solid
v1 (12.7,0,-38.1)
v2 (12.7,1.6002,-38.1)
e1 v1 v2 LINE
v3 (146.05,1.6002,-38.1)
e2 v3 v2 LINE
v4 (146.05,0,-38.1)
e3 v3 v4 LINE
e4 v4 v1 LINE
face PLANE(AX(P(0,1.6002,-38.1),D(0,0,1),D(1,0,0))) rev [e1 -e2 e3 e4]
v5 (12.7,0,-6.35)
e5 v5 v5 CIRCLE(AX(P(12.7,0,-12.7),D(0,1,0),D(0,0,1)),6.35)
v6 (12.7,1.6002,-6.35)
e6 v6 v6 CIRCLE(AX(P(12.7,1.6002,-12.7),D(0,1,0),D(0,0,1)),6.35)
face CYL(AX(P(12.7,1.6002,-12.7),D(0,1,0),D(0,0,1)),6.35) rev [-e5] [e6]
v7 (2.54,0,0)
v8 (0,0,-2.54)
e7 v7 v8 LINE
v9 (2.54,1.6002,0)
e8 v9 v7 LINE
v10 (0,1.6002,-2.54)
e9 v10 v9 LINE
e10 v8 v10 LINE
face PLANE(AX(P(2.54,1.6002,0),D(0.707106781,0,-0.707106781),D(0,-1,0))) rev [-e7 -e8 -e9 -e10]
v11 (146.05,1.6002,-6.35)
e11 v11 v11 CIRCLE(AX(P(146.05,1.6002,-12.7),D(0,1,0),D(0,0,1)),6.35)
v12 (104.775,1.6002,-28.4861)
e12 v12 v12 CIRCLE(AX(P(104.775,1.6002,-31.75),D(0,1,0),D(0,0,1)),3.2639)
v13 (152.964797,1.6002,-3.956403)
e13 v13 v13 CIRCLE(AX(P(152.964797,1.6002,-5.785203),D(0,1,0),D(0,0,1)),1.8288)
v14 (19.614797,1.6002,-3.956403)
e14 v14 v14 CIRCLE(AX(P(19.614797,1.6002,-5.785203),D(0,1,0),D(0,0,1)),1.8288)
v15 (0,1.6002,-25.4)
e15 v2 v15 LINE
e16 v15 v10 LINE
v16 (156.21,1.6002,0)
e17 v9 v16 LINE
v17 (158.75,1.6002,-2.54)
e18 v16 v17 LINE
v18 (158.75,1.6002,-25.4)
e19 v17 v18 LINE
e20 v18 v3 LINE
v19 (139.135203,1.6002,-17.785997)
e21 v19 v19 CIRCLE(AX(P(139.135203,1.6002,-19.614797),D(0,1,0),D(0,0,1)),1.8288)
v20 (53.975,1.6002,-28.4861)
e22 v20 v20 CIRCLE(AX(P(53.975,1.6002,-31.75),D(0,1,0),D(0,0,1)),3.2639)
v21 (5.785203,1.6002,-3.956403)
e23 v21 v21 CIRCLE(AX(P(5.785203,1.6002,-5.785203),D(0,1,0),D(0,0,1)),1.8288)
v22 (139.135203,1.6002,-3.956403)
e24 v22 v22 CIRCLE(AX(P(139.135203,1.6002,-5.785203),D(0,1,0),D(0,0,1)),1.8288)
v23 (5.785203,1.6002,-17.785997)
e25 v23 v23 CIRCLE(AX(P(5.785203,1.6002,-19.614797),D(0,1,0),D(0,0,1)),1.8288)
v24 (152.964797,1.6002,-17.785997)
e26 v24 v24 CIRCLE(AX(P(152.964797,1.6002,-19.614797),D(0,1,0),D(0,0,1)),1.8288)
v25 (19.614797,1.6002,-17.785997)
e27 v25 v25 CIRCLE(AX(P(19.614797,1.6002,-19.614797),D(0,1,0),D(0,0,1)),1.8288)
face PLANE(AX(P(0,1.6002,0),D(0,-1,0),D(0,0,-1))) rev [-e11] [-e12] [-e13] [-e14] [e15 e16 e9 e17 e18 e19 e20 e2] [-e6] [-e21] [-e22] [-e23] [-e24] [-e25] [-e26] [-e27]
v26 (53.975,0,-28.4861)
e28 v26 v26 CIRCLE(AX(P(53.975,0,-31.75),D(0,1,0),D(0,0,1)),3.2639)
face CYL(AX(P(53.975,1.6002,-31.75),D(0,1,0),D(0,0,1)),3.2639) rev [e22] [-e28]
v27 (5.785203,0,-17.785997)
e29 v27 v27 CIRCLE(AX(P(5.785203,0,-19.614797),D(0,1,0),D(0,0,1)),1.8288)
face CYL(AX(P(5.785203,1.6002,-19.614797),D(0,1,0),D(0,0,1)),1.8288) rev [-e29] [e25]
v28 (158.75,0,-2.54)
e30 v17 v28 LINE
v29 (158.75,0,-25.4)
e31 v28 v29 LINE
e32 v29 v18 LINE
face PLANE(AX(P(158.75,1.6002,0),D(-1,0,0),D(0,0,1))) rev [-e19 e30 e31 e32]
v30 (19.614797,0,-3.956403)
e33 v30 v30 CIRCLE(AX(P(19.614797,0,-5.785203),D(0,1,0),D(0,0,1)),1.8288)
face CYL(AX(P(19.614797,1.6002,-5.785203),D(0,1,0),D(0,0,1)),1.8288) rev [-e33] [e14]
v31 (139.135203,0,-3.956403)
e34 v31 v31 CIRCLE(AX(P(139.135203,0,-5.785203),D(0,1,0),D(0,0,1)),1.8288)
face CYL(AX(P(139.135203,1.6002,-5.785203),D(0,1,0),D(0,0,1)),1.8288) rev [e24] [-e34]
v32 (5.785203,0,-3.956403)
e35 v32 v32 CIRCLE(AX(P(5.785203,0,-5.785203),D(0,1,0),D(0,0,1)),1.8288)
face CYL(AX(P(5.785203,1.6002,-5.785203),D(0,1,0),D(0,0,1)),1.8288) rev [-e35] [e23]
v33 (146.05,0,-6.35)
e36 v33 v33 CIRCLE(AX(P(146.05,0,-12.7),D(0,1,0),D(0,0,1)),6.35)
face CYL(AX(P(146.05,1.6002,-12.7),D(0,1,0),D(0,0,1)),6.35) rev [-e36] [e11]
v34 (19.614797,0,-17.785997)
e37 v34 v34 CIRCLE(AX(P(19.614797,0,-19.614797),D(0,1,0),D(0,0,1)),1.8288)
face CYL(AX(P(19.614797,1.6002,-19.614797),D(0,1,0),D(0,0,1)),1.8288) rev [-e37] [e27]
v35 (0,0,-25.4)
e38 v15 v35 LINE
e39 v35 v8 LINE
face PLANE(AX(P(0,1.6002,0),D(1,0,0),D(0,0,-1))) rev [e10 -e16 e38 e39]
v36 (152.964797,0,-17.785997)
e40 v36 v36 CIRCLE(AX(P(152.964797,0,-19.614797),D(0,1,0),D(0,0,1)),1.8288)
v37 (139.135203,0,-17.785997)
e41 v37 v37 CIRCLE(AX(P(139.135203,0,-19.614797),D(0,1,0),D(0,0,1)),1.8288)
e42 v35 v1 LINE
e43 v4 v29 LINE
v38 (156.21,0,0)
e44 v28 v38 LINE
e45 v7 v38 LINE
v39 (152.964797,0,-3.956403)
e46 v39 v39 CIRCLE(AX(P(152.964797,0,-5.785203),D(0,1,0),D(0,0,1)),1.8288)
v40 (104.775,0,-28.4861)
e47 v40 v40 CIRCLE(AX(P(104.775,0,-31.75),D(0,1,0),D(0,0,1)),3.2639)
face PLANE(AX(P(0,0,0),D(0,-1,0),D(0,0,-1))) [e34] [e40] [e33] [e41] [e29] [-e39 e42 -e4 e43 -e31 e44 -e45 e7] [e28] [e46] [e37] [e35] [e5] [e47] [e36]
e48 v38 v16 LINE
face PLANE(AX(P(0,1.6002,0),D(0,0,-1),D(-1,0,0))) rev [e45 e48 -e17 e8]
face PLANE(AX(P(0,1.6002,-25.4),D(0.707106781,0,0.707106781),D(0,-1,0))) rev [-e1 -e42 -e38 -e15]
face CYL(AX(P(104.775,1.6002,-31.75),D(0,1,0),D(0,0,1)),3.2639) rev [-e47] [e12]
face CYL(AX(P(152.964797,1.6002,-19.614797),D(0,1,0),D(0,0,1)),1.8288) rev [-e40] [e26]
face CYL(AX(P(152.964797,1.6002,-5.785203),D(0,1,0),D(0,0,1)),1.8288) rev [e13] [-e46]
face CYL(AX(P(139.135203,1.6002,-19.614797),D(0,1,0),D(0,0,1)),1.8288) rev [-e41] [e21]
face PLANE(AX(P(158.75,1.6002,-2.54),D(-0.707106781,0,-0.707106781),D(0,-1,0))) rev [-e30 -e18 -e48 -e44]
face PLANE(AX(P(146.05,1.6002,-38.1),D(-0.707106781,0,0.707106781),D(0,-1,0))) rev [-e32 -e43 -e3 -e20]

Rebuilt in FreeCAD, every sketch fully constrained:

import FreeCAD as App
import Part
import Sketcher
Q = App.Units.Quantity


def edges_at(feature, points):
    """Names of the edges that pass closest to the given points."""
    edges = feature.Shape.Edges
    near = lambda p: min(range(len(edges)), key=lambda i: edges[i].distToShape(Part.Vertex(*p))[0])
    return sorted({f"Edge{near(p) + 1}" for p in points})


def add_polygon(sketch, points):
    """Adds a closed chain of lines whose ends are joined by coincident constraints."""
    first, n = sketch.GeometryCount, len(points)
    for a, b in zip(points, points[1:] + points[:1]):
        sketch.addGeometry(Part.LineSegment(App.Vector(*a, 0), App.Vector(*b, 0)), False)
    for i in range(n):
        sketch.addConstraint(Sketcher.Constraint("Coincident", first + i, 2, first + (i + 1) % n, 1))

doc = App.newDocument("Part")
body = doc.addObject("PartDesign::Body", "Body")

sketch1 = doc.addObject("Sketcher::SketchObject", "Sketch")
body.addObject(sketch1)
sketch1.AttachmentSupport = (doc.XZ_Plane, [""])
sketch1.MapMode = "FlatFace"
add_polygon(sketch1, [(0, -38.1), (0, 0), (158.75, 0), (158.75, -38.1)])
sketch1.addConstraint([
    Sketcher.Constraint("Vertical", 0),
    Sketcher.Constraint("Horizontal", 1),
    Sketcher.Constraint("Vertical", 2),
    Sketcher.Constraint("Horizontal", 3),
    Sketcher.Constraint("Coincident", 0, 2, -1, 1),
    Sketcher.Constraint("DistanceY", 0, 1, 0, 2, Q("1.5 in")),
    Sketcher.Constraint("DistanceX", 1, 1, 1, 2, Q("6.25 in")),
])
pad1 = doc.addObject("PartDesign::Pad", "Pad")
body.addObject(pad1)
pad1.Profile = sketch1
pad1.Length = Q("0.063 in")
pad1.Reversed = True

sketch2 = doc.addObject("Sketcher::SketchObject", "Sketch001")
body.addObject(sketch2)
sketch2.AttachmentSupport = (doc.XZ_Plane, [""])
sketch2.MapMode = "FlatFace"
sketch2.AttachmentOffset = App.Placement(App.Vector(0, 0, -0.063 * 25.4), App.Rotation())
sketch2.addGeometry([
    Part.Circle(App.Vector(5.785203, -19.614797, 0), App.Vector(0, 0, 1), 1.8288),
    Part.Circle(App.Vector(19.614797, -5.785203, 0), App.Vector(0, 0, 1), 1.8288),
    Part.Circle(App.Vector(5.785203, -5.785203, 0), App.Vector(0, 0, 1), 1.8288),
    Part.Circle(App.Vector(19.614797, -19.614797, 0), App.Vector(0, 0, 1), 1.8288),
    Part.Circle(App.Vector(152.964797, -5.785203, 0), App.Vector(0, 0, 1), 1.8288),
    Part.Circle(App.Vector(139.135203, -5.785203, 0), App.Vector(0, 0, 1), 1.8288),
    Part.Circle(App.Vector(139.135203, -19.614797, 0), App.Vector(0, 0, 1), 1.8288),
    Part.Circle(App.Vector(152.964797, -19.614797, 0), App.Vector(0, 0, 1), 1.8288),
], False)
sketch2.addConstraint([
    Sketcher.Constraint("Equal", 0, 1),
    Sketcher.Constraint("Equal", 1, 2),
    Sketcher.Constraint("Equal", 2, 3),
    Sketcher.Constraint("Equal", 3, 4),
    Sketcher.Constraint("Equal", 4, 5),
    Sketcher.Constraint("Equal", 5, 6),
    Sketcher.Constraint("Equal", 6, 7),
    Sketcher.Constraint("Horizontal", 1, 3, 2, 3),
    Sketcher.Constraint("Horizontal", 0, 3, 3, 3),
    Sketcher.Constraint("Horizontal", 2, 3, 4, 3),
    Sketcher.Constraint("Horizontal", 4, 3, 5, 3),
    Sketcher.Constraint("Horizontal", 3, 3, 6, 3),
    Sketcher.Constraint("Horizontal", 6, 3, 7, 3),
    Sketcher.Constraint("Vertical", 0, 3, 2, 3),
    Sketcher.Constraint("Vertical", 1, 3, 3, 3),
    Sketcher.Constraint("Vertical", 5, 3, 6, 3),
    Sketcher.Constraint("Vertical", 4, 3, 7, 3),
    Sketcher.Constraint("Diameter", 0, Q("0.144 in")),
    Sketcher.Constraint("DistanceX", 1, 3, 4, 3, Q("5.25 in")),
    Sketcher.Constraint("DistanceX", 2, 3, 5, 3, Q("5.25 in")),
    Sketcher.Constraint("DistanceX", -1, 1, 0, 3, Q("5.785203 mm")),
    Sketcher.Constraint("DistanceY", 0, 3, -1, 1, Q("19.614797 mm")),
    Sketcher.Constraint("DistanceX", -1, 1, 1, 3, Q("19.614797 mm")),
    Sketcher.Constraint("DistanceY", 1, 3, -1, 1, Q("5.785203 mm")),
])
doc.recompute()
hole = doc.addObject("PartDesign::Hole", "Hole")
body.addObject(hole)
hole.Profile = sketch2
hole.ThreadType = "None"
hole.Diameter = Q("0.144 in")
hole.DepthType = "ThroughAll"
hole.Reversed = True

sketch3 = doc.addObject("Sketcher::SketchObject", "Sketch002")
body.addObject(sketch3)
sketch3.AttachmentSupport = (doc.XZ_Plane, [""])
sketch3.MapMode = "FlatFace"
sketch3.AttachmentOffset = App.Placement(App.Vector(0, 0, -0.063 * 25.4), App.Rotation())
sketch3.addGeometry([
    Part.Circle(App.Vector(12.7, -12.7, 0), App.Vector(0, 0, 1), 6.35),
    Part.Circle(App.Vector(146.05, -12.7, 0), App.Vector(0, 0, 1), 6.35),
], False)
sketch3.addConstraint([
    Sketcher.Constraint("Equal", 0, 1),
    Sketcher.Constraint("Horizontal", 0, 3, 1, 3),
    Sketcher.Constraint("Diameter", 0, Q("0.5 in")),
    Sketcher.Constraint("DistanceX", -1, 1, 0, 3, Q("0.5 in")),
    Sketcher.Constraint("DistanceY", 0, 3, -1, 1, Q("0.5 in")),
    Sketcher.Constraint("DistanceX", -1, 1, 1, 3, Q("5.75 in")),
])
doc.recompute()
hole2 = doc.addObject("PartDesign::Hole", "Hole001")
body.addObject(hole2)
hole2.Profile = sketch3
hole2.ThreadType = "None"
hole2.Diameter = Q("0.5 in")
hole2.DepthType = "ThroughAll"
hole2.Reversed = True

sketch4 = doc.addObject("Sketcher::SketchObject", "Sketch003")
body.addObject(sketch4)
sketch4.AttachmentSupport = (doc.XZ_Plane, [""])
sketch4.MapMode = "FlatFace"
sketch4.AttachmentOffset = App.Placement(App.Vector(0, 0, -0.063 * 25.4), App.Rotation())
sketch4.addGeometry([
    Part.Circle(App.Vector(53.975, -31.75, 0), App.Vector(0, 0, 1), 3.2639),
    Part.Circle(App.Vector(104.775, -31.75, 0), App.Vector(0, 0, 1), 3.2639),
], False)
sketch4.addConstraint([
    Sketcher.Constraint("Equal", 0, 1),
    Sketcher.Constraint("Horizontal", 0, 3, 1, 3),
    Sketcher.Constraint("Diameter", 0, Q("0.257 in")),
    Sketcher.Constraint("DistanceX", 0, 3, 1, 3, Q("2 in")),
    Sketcher.Constraint("DistanceY", 0, 3, -1, 1, Q("1.25 in")),
    Sketcher.Constraint("DistanceX", -1, 1, 0, 3, Q("2.125 in")),
])
doc.recompute()
hole3 = doc.addObject("PartDesign::Hole", "Hole002")
body.addObject(hole3)
hole3.Profile = sketch4
hole3.ThreadType = "None"
hole3.Diameter = Q("0.257 in")
hole3.DepthType = "ThroughAll"
hole3.Reversed = True
doc.recompute()

chamfer = doc.addObject("PartDesign::Chamfer", "Chamfer")
body.addObject(chamfer)
chamfer.Base = (hole3, edges_at(hole3, [(158.75, 0.8, 0), (0, 0.8, 0)]))
chamfer.Size = Q("0.1 in")
doc.recompute()

chamfer2 = doc.addObject("PartDesign::Chamfer", "Chamfer001")
body.addObject(chamfer2)
chamfer2.Base = (chamfer, edges_at(chamfer, [(0, 0.8, -38.1), (158.75, 0.8, -38.1)]))
chamfer2.Size = Q("0.5 in")

doc.recompute()
